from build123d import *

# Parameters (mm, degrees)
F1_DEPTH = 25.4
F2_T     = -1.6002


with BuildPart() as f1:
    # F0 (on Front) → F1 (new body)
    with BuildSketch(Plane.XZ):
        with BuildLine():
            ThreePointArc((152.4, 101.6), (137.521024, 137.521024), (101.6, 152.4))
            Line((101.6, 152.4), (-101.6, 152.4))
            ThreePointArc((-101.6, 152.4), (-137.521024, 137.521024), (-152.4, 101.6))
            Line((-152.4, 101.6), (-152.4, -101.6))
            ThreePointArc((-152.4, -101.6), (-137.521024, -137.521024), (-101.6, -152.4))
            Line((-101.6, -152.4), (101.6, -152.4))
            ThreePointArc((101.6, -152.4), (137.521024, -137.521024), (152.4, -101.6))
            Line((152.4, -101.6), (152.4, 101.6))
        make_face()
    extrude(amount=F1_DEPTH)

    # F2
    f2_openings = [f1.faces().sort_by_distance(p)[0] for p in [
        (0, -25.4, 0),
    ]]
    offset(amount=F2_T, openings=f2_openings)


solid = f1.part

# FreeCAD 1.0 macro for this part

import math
import FreeCAD as App
import Part
import Sketcher
Q = App.Units.Quantity


def faces_at(feature, points):
    """Names of the faces that lie closest to the given points."""
    faces = feature.Shape.Faces
    near = lambda p: min(range(len(faces)), key=lambda i: faces[i].distToShape(Part.Vertex(*p))[0])
    return sorted({f"Face{near(p) + 1}" for p in points})

doc = App.newDocument("Part")
params = doc.addObject("Spreadsheet::Sheet", "Params")
for row, (alias, value) in enumerate([
    ("sketch1_radius", "2.0000001 in"),
    ("sketch1_width", "8 in"),
    ("pad1_length", "1 in"),
    ("thickness_wall", "0.063 in"),
], start=1):
    params.set(f"A{row}", alias)
    params.set(f"B{row}", "=" + value)
    params.setAlias(f"B{row}", alias)

body = doc.addObject("PartDesign::Body", "Body")

# Sketch on XZ plane
sketch1 = body.newObject("Sketcher::SketchObject", "Sketch")
sketch1.AttachmentSupport = (doc.getObject("XZ_Plane"), [""])
sketch1.MapMode = "FlatFace"
sketch1.addGeometry([
    Part.ArcOfCircle(Part.Circle(App.Vector(102, 102, 0), App.Vector(0, 0, 1), 51), math.radians(0), math.radians(90)),  # 0
    Part.LineSegment(App.Vector(102, 152, 0), App.Vector(-102, 152, 0)),  # 1
    Part.ArcOfCircle(Part.Circle(App.Vector(-102, 102, 0), App.Vector(0, 0, 1), 51), math.radians(90), math.radians(180)),  # 2
    Part.LineSegment(App.Vector(-152, 102, 0), App.Vector(-152, -102, 0)),  # 3
    Part.ArcOfCircle(Part.Circle(App.Vector(-102, -102, 0), App.Vector(0, 0, 1), 51), math.radians(-180), math.radians(-90)),  # 4
    Part.LineSegment(App.Vector(-102, -152, 0), App.Vector(102, -152, 0)),  # 5
    Part.ArcOfCircle(Part.Circle(App.Vector(102, -102, 0), App.Vector(0, 0, 1), 51), math.radians(-90), math.radians(0)),  # 6
    Part.LineSegment(App.Vector(152, -102, 0), App.Vector(152, 102, 0)),  # 7
], False)
sketch1.addConstraint([
    Sketcher.Constraint("Tangent", 0, 2, 1, 1),
    Sketcher.Constraint("Tangent", 1, 2, 2, 1),
    Sketcher.Constraint("Tangent", 2, 2, 3, 1),
    Sketcher.Constraint("Tangent", 3, 2, 4, 1),
    Sketcher.Constraint("Tangent", 4, 2, 5, 1),
    Sketcher.Constraint("Tangent", 5, 2, 6, 1),
    Sketcher.Constraint("Tangent", 6, 2, 7, 1),
    Sketcher.Constraint("Tangent", 7, 2, 0, 1),
    Sketcher.Constraint("Horizontal", 1),
    Sketcher.Constraint("Vertical", 3),
    Sketcher.Constraint("Horizontal", 5),
    Sketcher.Constraint("Vertical", 7),
    Sketcher.Constraint("Equal", 0, 2),
    Sketcher.Constraint("Equal", 2, 4),
    Sketcher.Constraint("Equal", 4, 6),
    Sketcher.Constraint("Symmetric", 0, 3, 4, 3, -1, 1),
    Sketcher.Constraint("Equal", 5, 3),
    Sketcher.Constraint("Radius", 0, Q("2.0000001 in")),
    Sketcher.Constraint("DistanceX", 1, 2, 1, 1, Q("8 in")),
])
sketch1.setExpression("Constraints[17]", "Params.sketch1_radius")
sketch1.setExpression("Constraints[18]", "Params.sketch1_width")
pad1 = body.newObject("PartDesign::Pad", "Pad")
pad1.Profile = sketch1
pad1.setExpression("Length", "Params.pad1_length")
doc.recompute()

thickness = body.newObject("PartDesign::Thickness", "Thickness")
thickness.Base = (pad1, faces_at(pad1, [(0, -25.4, 0)]))
thickness.setExpression("Value", "Params.thickness_wall")
thickness.Reversed = True
thickness.Join = "Arc"

doc.recompute()
